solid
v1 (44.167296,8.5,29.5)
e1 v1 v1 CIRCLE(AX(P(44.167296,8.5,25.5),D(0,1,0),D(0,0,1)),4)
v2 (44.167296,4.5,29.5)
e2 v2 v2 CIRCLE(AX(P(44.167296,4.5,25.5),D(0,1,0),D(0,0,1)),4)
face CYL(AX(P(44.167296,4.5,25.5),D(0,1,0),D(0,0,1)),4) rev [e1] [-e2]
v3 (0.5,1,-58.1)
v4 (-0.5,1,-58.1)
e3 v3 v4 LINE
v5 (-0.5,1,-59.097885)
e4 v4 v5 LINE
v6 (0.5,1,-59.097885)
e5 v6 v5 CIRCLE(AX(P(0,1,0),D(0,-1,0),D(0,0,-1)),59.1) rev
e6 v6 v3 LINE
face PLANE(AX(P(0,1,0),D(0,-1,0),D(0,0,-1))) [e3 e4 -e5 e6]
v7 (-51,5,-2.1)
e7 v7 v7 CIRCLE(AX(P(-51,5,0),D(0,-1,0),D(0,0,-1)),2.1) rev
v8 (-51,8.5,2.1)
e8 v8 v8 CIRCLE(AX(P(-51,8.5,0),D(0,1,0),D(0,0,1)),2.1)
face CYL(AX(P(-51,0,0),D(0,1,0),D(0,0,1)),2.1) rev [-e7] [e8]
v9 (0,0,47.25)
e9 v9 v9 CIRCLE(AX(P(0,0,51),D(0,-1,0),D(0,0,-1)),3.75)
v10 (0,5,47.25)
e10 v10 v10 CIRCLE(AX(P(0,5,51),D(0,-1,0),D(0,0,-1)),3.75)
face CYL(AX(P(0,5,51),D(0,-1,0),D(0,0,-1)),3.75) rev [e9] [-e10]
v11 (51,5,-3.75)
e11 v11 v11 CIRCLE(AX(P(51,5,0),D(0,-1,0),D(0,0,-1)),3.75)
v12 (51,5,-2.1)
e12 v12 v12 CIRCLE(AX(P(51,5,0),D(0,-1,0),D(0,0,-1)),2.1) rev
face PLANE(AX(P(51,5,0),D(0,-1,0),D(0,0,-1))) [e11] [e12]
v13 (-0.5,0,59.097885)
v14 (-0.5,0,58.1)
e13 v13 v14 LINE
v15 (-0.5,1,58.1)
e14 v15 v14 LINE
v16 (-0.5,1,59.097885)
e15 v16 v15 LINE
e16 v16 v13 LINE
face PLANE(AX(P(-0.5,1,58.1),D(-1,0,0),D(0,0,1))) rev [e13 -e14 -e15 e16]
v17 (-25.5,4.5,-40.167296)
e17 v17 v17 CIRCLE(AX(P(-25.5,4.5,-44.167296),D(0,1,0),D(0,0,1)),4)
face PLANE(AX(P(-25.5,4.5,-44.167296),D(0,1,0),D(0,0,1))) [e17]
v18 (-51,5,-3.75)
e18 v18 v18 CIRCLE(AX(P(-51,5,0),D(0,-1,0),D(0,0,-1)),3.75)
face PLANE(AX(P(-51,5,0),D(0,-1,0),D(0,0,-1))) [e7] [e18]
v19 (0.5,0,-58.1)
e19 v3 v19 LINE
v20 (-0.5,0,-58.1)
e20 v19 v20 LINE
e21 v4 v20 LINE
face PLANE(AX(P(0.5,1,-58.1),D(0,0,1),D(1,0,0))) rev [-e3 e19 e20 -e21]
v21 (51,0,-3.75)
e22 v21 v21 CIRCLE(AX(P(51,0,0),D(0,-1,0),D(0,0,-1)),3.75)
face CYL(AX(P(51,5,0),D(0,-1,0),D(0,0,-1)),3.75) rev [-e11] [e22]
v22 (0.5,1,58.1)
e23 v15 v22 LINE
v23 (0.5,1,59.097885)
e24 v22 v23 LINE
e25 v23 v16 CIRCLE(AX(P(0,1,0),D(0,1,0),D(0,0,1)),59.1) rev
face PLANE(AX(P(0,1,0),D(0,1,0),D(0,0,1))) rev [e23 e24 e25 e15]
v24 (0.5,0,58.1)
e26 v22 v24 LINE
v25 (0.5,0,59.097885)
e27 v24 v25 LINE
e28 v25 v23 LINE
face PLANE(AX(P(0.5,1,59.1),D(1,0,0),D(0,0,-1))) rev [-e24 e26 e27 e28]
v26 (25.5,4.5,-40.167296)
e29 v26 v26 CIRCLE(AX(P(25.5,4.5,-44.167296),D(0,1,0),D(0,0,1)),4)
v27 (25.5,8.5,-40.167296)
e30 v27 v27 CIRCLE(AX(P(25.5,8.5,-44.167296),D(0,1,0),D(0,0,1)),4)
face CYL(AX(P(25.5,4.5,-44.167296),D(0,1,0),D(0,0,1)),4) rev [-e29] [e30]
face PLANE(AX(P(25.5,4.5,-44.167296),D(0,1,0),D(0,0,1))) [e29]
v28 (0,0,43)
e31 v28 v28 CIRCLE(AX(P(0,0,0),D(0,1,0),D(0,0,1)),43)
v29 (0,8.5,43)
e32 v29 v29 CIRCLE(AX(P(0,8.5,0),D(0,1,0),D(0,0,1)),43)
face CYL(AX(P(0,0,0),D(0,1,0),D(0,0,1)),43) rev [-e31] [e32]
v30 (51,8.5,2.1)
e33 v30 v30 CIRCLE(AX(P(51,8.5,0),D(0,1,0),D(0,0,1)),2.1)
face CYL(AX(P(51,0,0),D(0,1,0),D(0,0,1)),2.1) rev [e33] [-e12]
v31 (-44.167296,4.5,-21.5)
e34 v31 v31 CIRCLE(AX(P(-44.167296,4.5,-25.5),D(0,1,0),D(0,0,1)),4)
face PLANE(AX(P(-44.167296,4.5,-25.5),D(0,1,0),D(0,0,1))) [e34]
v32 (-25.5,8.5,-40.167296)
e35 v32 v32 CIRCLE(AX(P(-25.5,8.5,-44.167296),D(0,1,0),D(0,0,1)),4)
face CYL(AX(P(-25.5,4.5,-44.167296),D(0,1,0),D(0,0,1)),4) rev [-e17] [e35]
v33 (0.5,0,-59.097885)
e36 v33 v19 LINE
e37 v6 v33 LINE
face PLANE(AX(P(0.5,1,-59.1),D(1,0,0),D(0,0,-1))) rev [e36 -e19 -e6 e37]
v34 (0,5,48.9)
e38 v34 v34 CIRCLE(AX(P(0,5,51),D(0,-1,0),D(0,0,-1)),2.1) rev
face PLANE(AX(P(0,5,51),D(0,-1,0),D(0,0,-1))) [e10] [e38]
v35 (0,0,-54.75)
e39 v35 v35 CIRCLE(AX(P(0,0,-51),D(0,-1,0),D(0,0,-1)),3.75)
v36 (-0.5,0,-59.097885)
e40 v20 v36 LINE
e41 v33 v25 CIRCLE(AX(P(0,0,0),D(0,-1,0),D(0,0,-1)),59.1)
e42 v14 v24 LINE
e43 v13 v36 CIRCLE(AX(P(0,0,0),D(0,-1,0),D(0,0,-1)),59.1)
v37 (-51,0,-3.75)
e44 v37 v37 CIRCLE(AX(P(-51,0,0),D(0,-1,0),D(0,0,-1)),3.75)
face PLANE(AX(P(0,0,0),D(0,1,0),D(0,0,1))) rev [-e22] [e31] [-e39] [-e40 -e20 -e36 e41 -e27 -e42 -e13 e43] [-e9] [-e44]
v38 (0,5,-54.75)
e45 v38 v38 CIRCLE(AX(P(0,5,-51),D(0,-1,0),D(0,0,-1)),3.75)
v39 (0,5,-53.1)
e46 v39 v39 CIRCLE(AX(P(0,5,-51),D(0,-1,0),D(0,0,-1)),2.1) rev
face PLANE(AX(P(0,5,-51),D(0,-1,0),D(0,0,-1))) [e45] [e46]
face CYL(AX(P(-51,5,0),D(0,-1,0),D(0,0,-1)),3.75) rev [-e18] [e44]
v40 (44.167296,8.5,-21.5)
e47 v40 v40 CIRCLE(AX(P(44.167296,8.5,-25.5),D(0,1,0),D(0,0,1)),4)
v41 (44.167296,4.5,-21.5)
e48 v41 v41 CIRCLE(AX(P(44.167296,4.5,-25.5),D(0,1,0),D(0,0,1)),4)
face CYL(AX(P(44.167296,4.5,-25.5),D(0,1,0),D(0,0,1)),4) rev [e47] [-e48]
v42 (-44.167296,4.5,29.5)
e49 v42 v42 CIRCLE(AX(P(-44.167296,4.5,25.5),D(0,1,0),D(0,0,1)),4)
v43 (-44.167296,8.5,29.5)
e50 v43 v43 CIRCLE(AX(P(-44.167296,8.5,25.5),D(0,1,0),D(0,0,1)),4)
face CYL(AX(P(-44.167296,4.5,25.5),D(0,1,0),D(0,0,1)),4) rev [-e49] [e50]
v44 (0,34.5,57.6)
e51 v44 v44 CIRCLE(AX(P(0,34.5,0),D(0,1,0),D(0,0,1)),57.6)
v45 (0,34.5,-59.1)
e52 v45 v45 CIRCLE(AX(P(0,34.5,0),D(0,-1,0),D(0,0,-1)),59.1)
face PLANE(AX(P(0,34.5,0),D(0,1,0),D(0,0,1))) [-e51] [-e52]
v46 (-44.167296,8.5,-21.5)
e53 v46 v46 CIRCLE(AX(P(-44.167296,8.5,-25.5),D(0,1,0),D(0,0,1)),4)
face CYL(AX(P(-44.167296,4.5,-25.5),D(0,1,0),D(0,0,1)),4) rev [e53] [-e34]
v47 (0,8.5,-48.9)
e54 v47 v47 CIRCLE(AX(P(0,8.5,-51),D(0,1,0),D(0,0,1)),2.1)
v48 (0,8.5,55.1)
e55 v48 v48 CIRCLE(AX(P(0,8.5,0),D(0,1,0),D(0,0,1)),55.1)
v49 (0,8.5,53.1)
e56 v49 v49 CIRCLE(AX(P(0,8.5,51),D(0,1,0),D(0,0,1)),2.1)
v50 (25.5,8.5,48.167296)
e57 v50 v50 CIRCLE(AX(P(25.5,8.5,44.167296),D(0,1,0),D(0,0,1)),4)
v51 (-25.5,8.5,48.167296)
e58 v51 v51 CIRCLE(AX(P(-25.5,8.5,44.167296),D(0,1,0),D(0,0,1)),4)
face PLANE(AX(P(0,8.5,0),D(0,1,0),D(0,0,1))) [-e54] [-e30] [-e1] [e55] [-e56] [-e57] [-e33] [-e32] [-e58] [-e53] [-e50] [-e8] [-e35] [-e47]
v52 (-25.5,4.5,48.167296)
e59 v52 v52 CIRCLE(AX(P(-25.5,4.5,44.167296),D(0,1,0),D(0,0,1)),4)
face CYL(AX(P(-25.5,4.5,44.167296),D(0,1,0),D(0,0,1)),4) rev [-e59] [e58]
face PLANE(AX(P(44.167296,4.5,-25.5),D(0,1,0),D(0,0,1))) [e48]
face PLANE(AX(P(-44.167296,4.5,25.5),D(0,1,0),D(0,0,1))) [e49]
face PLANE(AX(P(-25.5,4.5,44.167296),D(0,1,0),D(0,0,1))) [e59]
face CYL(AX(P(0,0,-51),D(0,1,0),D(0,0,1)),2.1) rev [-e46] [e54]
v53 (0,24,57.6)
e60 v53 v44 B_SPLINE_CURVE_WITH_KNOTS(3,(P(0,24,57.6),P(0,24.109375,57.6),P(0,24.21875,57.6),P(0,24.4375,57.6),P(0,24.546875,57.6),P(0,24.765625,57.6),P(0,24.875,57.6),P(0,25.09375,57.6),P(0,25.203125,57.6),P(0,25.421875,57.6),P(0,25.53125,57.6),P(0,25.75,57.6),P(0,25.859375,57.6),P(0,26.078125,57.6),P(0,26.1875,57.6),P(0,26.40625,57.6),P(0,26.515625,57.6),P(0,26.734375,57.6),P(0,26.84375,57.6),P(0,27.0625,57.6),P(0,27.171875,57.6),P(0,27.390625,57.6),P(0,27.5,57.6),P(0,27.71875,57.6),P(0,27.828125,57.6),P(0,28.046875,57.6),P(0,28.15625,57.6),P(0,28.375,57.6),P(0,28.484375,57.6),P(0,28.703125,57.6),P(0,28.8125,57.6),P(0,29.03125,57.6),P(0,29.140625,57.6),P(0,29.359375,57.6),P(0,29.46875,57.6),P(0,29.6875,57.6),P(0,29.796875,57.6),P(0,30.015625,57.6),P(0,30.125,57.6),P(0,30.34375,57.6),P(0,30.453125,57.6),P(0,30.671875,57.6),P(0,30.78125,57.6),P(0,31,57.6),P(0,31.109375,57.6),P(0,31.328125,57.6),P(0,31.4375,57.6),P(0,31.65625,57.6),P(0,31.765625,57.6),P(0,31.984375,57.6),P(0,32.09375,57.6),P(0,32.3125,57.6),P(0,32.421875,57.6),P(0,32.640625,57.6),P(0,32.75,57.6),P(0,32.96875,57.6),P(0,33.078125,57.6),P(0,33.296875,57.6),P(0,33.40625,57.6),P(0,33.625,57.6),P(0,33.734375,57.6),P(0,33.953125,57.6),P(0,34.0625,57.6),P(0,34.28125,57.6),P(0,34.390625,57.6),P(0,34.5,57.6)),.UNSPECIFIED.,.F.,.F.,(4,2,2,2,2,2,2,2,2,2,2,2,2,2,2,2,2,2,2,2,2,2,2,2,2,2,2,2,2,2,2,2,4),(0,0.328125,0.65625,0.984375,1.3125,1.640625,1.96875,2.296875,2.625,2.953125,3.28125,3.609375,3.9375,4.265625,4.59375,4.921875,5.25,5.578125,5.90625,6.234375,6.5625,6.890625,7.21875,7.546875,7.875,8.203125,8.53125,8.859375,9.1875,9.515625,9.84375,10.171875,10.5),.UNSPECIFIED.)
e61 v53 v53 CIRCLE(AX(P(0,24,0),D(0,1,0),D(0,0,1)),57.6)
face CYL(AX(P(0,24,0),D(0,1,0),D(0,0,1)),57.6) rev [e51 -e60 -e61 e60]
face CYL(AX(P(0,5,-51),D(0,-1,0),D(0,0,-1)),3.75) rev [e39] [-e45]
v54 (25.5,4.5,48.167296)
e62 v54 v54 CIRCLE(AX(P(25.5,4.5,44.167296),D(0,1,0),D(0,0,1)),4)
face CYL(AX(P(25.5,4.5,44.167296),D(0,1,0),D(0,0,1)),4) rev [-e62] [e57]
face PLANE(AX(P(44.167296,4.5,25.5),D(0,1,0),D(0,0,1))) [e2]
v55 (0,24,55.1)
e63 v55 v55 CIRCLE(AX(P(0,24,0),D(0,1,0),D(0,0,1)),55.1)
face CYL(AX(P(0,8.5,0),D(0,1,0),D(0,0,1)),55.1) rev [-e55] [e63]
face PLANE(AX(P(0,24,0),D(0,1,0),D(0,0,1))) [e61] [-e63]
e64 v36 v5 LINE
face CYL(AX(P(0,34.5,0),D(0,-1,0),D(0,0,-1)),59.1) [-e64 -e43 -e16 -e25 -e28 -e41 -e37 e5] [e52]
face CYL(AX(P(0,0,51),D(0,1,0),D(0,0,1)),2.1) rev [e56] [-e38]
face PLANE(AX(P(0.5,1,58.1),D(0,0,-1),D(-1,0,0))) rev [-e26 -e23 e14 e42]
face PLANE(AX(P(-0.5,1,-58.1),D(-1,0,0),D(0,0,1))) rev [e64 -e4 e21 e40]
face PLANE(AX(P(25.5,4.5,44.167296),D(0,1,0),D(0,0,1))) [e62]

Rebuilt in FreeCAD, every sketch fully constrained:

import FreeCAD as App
import Part
import Sketcher

V = App.Vector

doc = App.newDocument("Part")
params = doc.addObject("Spreadsheet::Sheet", "Params")
for row, (alias, value) in enumerate([
    ("sketch1_diameter", "119 mm"),
    ("pad1_length", "34.5 mm"),
    ("sketch2_diameter", "115.2 mm"),
    ("pocket1_length", "10.5 mm"),
    ("sketch3_diameter", "110.2 mm"),
    ("pocket2_length", "15.5 mm"),
    ("sketch4_diameter", "86 mm"),
    ("sketch5_diameter", "8 mm"),
    ("pocket4_length", "4 mm"),
    ("sketch6_diameter", "4.2 mm"),
    ("sketch7_diameter", "7.5 mm"),
    ("pocket6_length", "5 mm"),
    ("sketch8_diameter", "119 mm"),
    ("sketch8_diameter2", "118.2 mm"),
    ("sketch9_width", "1 mm"),
    ("pocket8_length", "1 mm"),
], start=1):
    params.set(f"A{row}", alias)
    params.set(f"B{row}", "=" + value)
    params.setAlias(f"B{row}", alias)

body = doc.addObject("PartDesign::Body", "Body")

sketch1 = body.newObject("Sketcher::SketchObject", "Sketch")
sketch1.AttachmentSupport = (doc.getObject("XZ_Plane"), [""])
sketch1.MapMode = "FlatFace"
sketch1.addGeometry(Part.Circle(V(0, 0, 0), V(0, 0, 1), 60), False)
sketch1.addConstraint(Sketcher.Constraint("Coincident", 0, 3, -1, 1))
sketch1.addConstraint(Sketcher.Constraint("Diameter", 0, 119.0))
sketch1.setExpression("Constraints[1]", "Params.sketch1_diameter")
pad1 = body.newObject("PartDesign::Pad", "Pad")
pad1.Profile = sketch1
pad1.setExpression("Length", "Params.pad1_length")
pad1.Reversed = True

sketch2 = body.newObject("Sketcher::SketchObject", "Sketch001")
sketch2.AttachmentSupport = (doc.getObject("XZ_Plane"), [""])
sketch2.MapMode = "FlatFace"
sketch2.AttachmentOffset = App.Placement(V(0, 0, -34.5), App.Rotation())
sketch2.addGeometry(Part.Circle(V(0, 0, 0), V(0, 0, 1), 58), False)
sketch2.addConstraint(Sketcher.Constraint("Coincident", 0, 3, -1, 1))
sketch2.addConstraint(Sketcher.Constraint("Diameter", 0, 115.2))
sketch2.setExpression("Constraints[1]", "Params.sketch2_diameter")
pocket1 = body.newObject("PartDesign::Pocket", "Pocket")
pocket1.Profile = sketch2
pocket1.setExpression("Length", "Params.pocket1_length")
pocket1.Reversed = True

sketch3 = body.newObject("Sketcher::SketchObject", "Sketch002")
sketch3.AttachmentSupport = (doc.getObject("XZ_Plane"), [""])
sketch3.MapMode = "FlatFace"
sketch3.AttachmentOffset = App.Placement(V(0, 0, -24), App.Rotation())
sketch3.addGeometry(Part.Circle(V(0, 0, 0), V(0, 0, 1), 55), False)
sketch3.addConstraint(Sketcher.Constraint("Coincident", 0, 3, -1, 1))
sketch3.addConstraint(Sketcher.Constraint("Diameter", 0, 110.2))
sketch3.setExpression("Constraints[1]", "Params.sketch3_diameter")
pocket2 = body.newObject("PartDesign::Pocket", "Pocket001")
pocket2.Profile = sketch3
pocket2.setExpression("Length", "Params.pocket2_length")
pocket2.Reversed = True

sketch4 = body.newObject("Sketcher::SketchObject", "Sketch003")
sketch4.AttachmentSupport = (doc.getObject("XZ_Plane"), [""])
sketch4.MapMode = "FlatFace"
sketch4.AttachmentOffset = App.Placement(V(0, 0, -8.5), App.Rotation())
sketch4.addGeometry(Part.Circle(V(0, 0, 0), V(0, 0, 1), 43), False)
sketch4.addConstraint(Sketcher.Constraint("Coincident", 0, 3, -1, 1))
sketch4.addConstraint(Sketcher.Constraint("Diameter", 0, 86.0))
sketch4.setExpression("Constraints[1]", "Params.sketch4_diameter")
pocket3 = body.newObject("PartDesign::Pocket", "Pocket002")
pocket3.Profile = sketch4
pocket3.Type = "ThroughAll"
pocket3.Reversed = True

sketch5 = body.newObject("Sketcher::SketchObject", "Sketch004")
sketch5.AttachmentSupport = (doc.getObject("XZ_Plane"), [""])
sketch5.MapMode = "FlatFace"
sketch5.AttachmentOffset = App.Placement(V(0, 0, -8.5), App.Rotation())
sketch5.addGeometry(Part.Circle(V(-44.2, -25.5, 0), V(0, 0, 1), 4), False)
sketch5.addGeometry(Part.Circle(V(-25.5, -44.2, 0), V(0, 0, 1), 4), False)
sketch5.addGeometry(Part.Circle(V(25.5, -44.2, 0), V(0, 0, 1), 4), False)
sketch5.addGeometry(Part.Circle(V(44.2, -25.5, 0), V(0, 0, 1), 4), False)
sketch5.addGeometry(Part.Circle(V(44.2, 25.5, 0), V(0, 0, 1), 4), False)
sketch5.addGeometry(Part.Circle(V(25.5, 44.2, 0), V(0, 0, 1), 4), False)
sketch5.addGeometry(Part.Circle(V(-25.5, 44.2, 0), V(0, 0, 1), 4), False)
sketch5.addGeometry(Part.Circle(V(-44.2, 25.5, 0), V(0, 0, 1), 4), False)
sketch5.addConstraint(Sketcher.Constraint("Equal", 0, 1))
sketch5.addConstraint(Sketcher.Constraint("Equal", 1, 2))
sketch5.addConstraint(Sketcher.Constraint("Equal", 2, 3))
sketch5.addConstraint(Sketcher.Constraint("Equal", 3, 4))
sketch5.addConstraint(Sketcher.Constraint("Equal", 4, 5))
sketch5.addConstraint(Sketcher.Constraint("Equal", 5, 6))
sketch5.addConstraint(Sketcher.Constraint("Equal", 6, 7))
sketch5.addConstraint(Sketcher.Constraint("Symmetric", 0, 3, 4, 3, -1, 1))
sketch5.addConstraint(Sketcher.Constraint("Symmetric", 1, 3, 5, 3, -1, 1))
sketch5.addConstraint(Sketcher.Constraint("Symmetric", 2, 3, 6, 3, -1, 1))
sketch5.addConstraint(Sketcher.Constraint("Symmetric", 3, 3, 7, 3, -1, 1))
sketch5.addConstraint(Sketcher.Constraint("Symmetric", 1, 3, 2, 3, -2))
sketch5.addConstraint(Sketcher.Constraint("Symmetric", 0, 3, 3, 3, -2))
sketch5.addConstraint(Sketcher.Constraint("Diameter", 0, 8.0))
sketch5.addConstraint(Sketcher.Constraint("DistanceX", 1, 3, 2, 3, 51.0))
sketch5.addConstraint(Sketcher.Constraint("DistanceY", 3, 3, 4, 3, 51.0))
sketch5.addConstraint(Sketcher.Constraint("DistanceX", 0, 3, 3, 3, 88.334591))
sketch5.addConstraint(Sketcher.Constraint("DistanceY", 2, 3, 5, 3, 88.334591))
sketch5.setExpression("Constraints[13]", "Params.sketch5_diameter")
pocket4 = body.newObject("PartDesign::Pocket", "Pocket003")
pocket4.Profile = sketch5
pocket4.setExpression("Length", "Params.pocket4_length")
pocket4.Reversed = True

sketch6 = body.newObject("Sketcher::SketchObject", "Sketch005")
sketch6.AttachmentSupport = (doc.getObject("XZ_Plane"), [""])
sketch6.MapMode = "FlatFace"
sketch6.AttachmentOffset = App.Placement(V(0, 0, -8.5), App.Rotation())
sketch6.addGeometry(Part.Circle(V(0, -51, 0), V(0, 0, 1), 2.1), False)
sketch6.addGeometry(Part.Circle(V(51, 0, 0), V(0, 0, 1), 2.1), False)
sketch6.addGeometry(Part.Circle(V(0, 51, 0), V(0, 0, 1), 2.1), False)
sketch6.addGeometry(Part.Circle(V(-51, 0, 0), V(0, 0, 1), 2.1), False)
sketch6.addConstraint(Sketcher.Constraint("Equal", 0, 1))
sketch6.addConstraint(Sketcher.Constraint("Equal", 1, 2))
sketch6.addConstraint(Sketcher.Constraint("Equal", 2, 3))
sketch6.addConstraint(Sketcher.Constraint("Symmetric", 0, 3, 2, 3, -1, 1))
sketch6.addConstraint(Sketcher.Constraint("Symmetric", 1, 3, 3, 3, -1, 1))
sketch6.addConstraint(Sketcher.Constraint("PointOnObject", 0, 3, -2))
sketch6.addConstraint(Sketcher.Constraint("PointOnObject", 1, 3, -1))
sketch6.addConstraint(Sketcher.Constraint("Diameter", 0, 4.2))
sketch6.addConstraint(Sketcher.Constraint("DistanceY", 0, 3, -1, 1, 51.0))
sketch6.addConstraint(Sketcher.Constraint("DistanceX", -1, 1, 1, 3, 51.0))
sketch6.setExpression("Constraints[7]", "Params.sketch6_diameter")
pocket5 = body.newObject("PartDesign::Pocket", "Pocket004")
pocket5.Profile = sketch6
pocket5.Type = "ThroughAll"
pocket5.Reversed = True

sketch7 = body.newObject("Sketcher::SketchObject", "Sketch006")
sketch7.AttachmentSupport = (doc.getObject("XZ_Plane"), [""])
sketch7.MapMode = "FlatFace"
sketch7.addGeometry(Part.Circle(V(0, 51, 0), V(0, 0, 1), 3.8), False)
sketch7.addGeometry(Part.Circle(V(51, 0, 0), V(0, 0, 1), 3.8), False)
sketch7.addGeometry(Part.Circle(V(0, -51, 0), V(0, 0, 1), 3.8), False)
sketch7.addGeometry(Part.Circle(V(-51, 0, 0), V(0, 0, 1), 3.8), False)
sketch7.addConstraint(Sketcher.Constraint("Equal", 0, 1))
sketch7.addConstraint(Sketcher.Constraint("Equal", 1, 2))
sketch7.addConstraint(Sketcher.Constraint("Equal", 2, 3))
sketch7.addConstraint(Sketcher.Constraint("Symmetric", 0, 3, 2, 3, -1, 1))
sketch7.addConstraint(Sketcher.Constraint("Symmetric", 1, 3, 3, 3, -1, 1))
sketch7.addConstraint(Sketcher.Constraint("PointOnObject", 0, 3, -2))
sketch7.addConstraint(Sketcher.Constraint("PointOnObject", 1, 3, -1))
sketch7.addConstraint(Sketcher.Constraint("Diameter", 0, 7.5))
sketch7.addConstraint(Sketcher.Constraint("DistanceY", -1, 1, 0, 3, 51.0))
sketch7.addConstraint(Sketcher.Constraint("DistanceX", -1, 1, 1, 3, 51.0))
sketch7.setExpression("Constraints[7]", "Params.sketch7_diameter")
pocket6 = body.newObject("PartDesign::Pocket", "Pocket005")
pocket6.Profile = sketch7
pocket6.setExpression("Length", "Params.pocket6_length")

sketch8 = body.newObject("Sketcher::SketchObject", "Sketch007")
sketch8.AttachmentSupport = (doc.getObject("XZ_Plane"), [""])
sketch8.MapMode = "FlatFace"
sketch8.addGeometry(Part.Circle(V(0, 0, 0), V(0, 0, 1), 60), False)
sketch8.addGeometry(Part.Circle(V(0, 0, 0), V(0, 0, 1), 59), False)
sketch8.addConstraint(Sketcher.Constraint("Coincident", 0, 3, -1, 1))
sketch8.addConstraint(Sketcher.Constraint("Coincident", 1, 3, -1, 1))
sketch8.addConstraint(Sketcher.Constraint("Diameter", 0, 119.0))
sketch8.addConstraint(Sketcher.Constraint("Diameter", 1, 118.2))
sketch8.setExpression("Constraints[2]", "Params.sketch8_diameter")
sketch8.setExpression("Constraints[3]", "Params.sketch8_diameter2")
pocket7 = body.newObject("PartDesign::Pocket", "Pocket006")
pocket7.Profile = sketch8
pocket7.Type = "ThroughAll"

sketch9 = body.newObject("Sketcher::SketchObject", "Sketch008")
sketch9.AttachmentSupport = (doc.getObject("XZ_Plane"), [""])
sketch9.MapMode = "FlatFace"
sketch9.addGeometry(Part.LineSegment(V(0.5, -59.1, 0), V(0.5, -58.1, 0)), False)
sketch9.addGeometry(Part.LineSegment(V(0.5, -58.1, 0), V(-0.5, -58.1, 0)), False)
sketch9.addGeometry(Part.LineSegment(V(-0.5, -58.1, 0), V(-0.5, -59.1, 0)), False)
sketch9.addGeometry(Part.LineSegment(V(-0.5, -59.1, 0), V(0.5, -59.1, 0)), False)
sketch9.addGeometry(Part.LineSegment(V(0.5, 58.1, 0), V(0.5, 59.1, 0)), False)
sketch9.addGeometry(Part.LineSegment(V(0.5, 59.1, 0), V(-0.5, 59.1, 0)), False)
sketch9.addGeometry(Part.LineSegment(V(-0.5, 59.1, 0), V(-0.5, 58.1, 0)), False)
sketch9.addGeometry(Part.LineSegment(V(-0.5, 58.1, 0), V(0.5, 58.1, 0)), False)
sketch9.addConstraint(Sketcher.Constraint("Coincident", 0, 2, 1, 1))
sketch9.addConstraint(Sketcher.Constraint("Coincident", 1, 2, 2, 1))
sketch9.addConstraint(Sketcher.Constraint("Coincident", 2, 2, 3, 1))
sketch9.addConstraint(Sketcher.Constraint("Coincident", 3, 2, 0, 1))
sketch9.addConstraint(Sketcher.Constraint("Coincident", 4, 2, 5, 1))
sketch9.addConstraint(Sketcher.Constraint("Coincident", 5, 2, 6, 1))
sketch9.addConstraint(Sketcher.Constraint("Coincident", 6, 2, 7, 1))
sketch9.addConstraint(Sketcher.Constraint("Coincident", 7, 2, 4, 1))
sketch9.addConstraint(Sketcher.Constraint("Vertical", 0))
sketch9.addConstraint(Sketcher.Constraint("Horizontal", 1))
sketch9.addConstraint(Sketcher.Constraint("Vertical", 2))
sketch9.addConstraint(Sketcher.Constraint("Horizontal", 3))
sketch9.addConstraint(Sketcher.Constraint("Vertical", 4))
sketch9.addConstraint(Sketcher.Constraint("Horizontal", 5))
sketch9.addConstraint(Sketcher.Constraint("Vertical", 6))
sketch9.addConstraint(Sketcher.Constraint("Horizontal", 7))
sketch9.addConstraint(Sketcher.Constraint("Symmetric", 2, 2, 4, 2, -1, 1))
sketch9.addConstraint(Sketcher.Constraint("Symmetric", 0, 2, 6, 2, -1, 1))
sketch9.addConstraint(Sketcher.Constraint("Vertical", 3, 2, 4, 2))
sketch9.addConstraint(Sketcher.Constraint("Equal", 7, 0))
sketch9.addConstraint(Sketcher.Constraint("DistanceX", 1, 2, 1, 1, 1.0))
sketch9.addConstraint(Sketcher.Constraint("DistanceY", 0, 2, -1, 1, 58.1))
sketch9.setExpression("Constraints[20]", "Params.sketch9_width")
pocket8 = body.newObject("PartDesign::Pocket", "Pocket007")
pocket8.Profile = sketch9
pocket8.setExpression("Length", "Params.pocket8_length")

doc.recompute()
